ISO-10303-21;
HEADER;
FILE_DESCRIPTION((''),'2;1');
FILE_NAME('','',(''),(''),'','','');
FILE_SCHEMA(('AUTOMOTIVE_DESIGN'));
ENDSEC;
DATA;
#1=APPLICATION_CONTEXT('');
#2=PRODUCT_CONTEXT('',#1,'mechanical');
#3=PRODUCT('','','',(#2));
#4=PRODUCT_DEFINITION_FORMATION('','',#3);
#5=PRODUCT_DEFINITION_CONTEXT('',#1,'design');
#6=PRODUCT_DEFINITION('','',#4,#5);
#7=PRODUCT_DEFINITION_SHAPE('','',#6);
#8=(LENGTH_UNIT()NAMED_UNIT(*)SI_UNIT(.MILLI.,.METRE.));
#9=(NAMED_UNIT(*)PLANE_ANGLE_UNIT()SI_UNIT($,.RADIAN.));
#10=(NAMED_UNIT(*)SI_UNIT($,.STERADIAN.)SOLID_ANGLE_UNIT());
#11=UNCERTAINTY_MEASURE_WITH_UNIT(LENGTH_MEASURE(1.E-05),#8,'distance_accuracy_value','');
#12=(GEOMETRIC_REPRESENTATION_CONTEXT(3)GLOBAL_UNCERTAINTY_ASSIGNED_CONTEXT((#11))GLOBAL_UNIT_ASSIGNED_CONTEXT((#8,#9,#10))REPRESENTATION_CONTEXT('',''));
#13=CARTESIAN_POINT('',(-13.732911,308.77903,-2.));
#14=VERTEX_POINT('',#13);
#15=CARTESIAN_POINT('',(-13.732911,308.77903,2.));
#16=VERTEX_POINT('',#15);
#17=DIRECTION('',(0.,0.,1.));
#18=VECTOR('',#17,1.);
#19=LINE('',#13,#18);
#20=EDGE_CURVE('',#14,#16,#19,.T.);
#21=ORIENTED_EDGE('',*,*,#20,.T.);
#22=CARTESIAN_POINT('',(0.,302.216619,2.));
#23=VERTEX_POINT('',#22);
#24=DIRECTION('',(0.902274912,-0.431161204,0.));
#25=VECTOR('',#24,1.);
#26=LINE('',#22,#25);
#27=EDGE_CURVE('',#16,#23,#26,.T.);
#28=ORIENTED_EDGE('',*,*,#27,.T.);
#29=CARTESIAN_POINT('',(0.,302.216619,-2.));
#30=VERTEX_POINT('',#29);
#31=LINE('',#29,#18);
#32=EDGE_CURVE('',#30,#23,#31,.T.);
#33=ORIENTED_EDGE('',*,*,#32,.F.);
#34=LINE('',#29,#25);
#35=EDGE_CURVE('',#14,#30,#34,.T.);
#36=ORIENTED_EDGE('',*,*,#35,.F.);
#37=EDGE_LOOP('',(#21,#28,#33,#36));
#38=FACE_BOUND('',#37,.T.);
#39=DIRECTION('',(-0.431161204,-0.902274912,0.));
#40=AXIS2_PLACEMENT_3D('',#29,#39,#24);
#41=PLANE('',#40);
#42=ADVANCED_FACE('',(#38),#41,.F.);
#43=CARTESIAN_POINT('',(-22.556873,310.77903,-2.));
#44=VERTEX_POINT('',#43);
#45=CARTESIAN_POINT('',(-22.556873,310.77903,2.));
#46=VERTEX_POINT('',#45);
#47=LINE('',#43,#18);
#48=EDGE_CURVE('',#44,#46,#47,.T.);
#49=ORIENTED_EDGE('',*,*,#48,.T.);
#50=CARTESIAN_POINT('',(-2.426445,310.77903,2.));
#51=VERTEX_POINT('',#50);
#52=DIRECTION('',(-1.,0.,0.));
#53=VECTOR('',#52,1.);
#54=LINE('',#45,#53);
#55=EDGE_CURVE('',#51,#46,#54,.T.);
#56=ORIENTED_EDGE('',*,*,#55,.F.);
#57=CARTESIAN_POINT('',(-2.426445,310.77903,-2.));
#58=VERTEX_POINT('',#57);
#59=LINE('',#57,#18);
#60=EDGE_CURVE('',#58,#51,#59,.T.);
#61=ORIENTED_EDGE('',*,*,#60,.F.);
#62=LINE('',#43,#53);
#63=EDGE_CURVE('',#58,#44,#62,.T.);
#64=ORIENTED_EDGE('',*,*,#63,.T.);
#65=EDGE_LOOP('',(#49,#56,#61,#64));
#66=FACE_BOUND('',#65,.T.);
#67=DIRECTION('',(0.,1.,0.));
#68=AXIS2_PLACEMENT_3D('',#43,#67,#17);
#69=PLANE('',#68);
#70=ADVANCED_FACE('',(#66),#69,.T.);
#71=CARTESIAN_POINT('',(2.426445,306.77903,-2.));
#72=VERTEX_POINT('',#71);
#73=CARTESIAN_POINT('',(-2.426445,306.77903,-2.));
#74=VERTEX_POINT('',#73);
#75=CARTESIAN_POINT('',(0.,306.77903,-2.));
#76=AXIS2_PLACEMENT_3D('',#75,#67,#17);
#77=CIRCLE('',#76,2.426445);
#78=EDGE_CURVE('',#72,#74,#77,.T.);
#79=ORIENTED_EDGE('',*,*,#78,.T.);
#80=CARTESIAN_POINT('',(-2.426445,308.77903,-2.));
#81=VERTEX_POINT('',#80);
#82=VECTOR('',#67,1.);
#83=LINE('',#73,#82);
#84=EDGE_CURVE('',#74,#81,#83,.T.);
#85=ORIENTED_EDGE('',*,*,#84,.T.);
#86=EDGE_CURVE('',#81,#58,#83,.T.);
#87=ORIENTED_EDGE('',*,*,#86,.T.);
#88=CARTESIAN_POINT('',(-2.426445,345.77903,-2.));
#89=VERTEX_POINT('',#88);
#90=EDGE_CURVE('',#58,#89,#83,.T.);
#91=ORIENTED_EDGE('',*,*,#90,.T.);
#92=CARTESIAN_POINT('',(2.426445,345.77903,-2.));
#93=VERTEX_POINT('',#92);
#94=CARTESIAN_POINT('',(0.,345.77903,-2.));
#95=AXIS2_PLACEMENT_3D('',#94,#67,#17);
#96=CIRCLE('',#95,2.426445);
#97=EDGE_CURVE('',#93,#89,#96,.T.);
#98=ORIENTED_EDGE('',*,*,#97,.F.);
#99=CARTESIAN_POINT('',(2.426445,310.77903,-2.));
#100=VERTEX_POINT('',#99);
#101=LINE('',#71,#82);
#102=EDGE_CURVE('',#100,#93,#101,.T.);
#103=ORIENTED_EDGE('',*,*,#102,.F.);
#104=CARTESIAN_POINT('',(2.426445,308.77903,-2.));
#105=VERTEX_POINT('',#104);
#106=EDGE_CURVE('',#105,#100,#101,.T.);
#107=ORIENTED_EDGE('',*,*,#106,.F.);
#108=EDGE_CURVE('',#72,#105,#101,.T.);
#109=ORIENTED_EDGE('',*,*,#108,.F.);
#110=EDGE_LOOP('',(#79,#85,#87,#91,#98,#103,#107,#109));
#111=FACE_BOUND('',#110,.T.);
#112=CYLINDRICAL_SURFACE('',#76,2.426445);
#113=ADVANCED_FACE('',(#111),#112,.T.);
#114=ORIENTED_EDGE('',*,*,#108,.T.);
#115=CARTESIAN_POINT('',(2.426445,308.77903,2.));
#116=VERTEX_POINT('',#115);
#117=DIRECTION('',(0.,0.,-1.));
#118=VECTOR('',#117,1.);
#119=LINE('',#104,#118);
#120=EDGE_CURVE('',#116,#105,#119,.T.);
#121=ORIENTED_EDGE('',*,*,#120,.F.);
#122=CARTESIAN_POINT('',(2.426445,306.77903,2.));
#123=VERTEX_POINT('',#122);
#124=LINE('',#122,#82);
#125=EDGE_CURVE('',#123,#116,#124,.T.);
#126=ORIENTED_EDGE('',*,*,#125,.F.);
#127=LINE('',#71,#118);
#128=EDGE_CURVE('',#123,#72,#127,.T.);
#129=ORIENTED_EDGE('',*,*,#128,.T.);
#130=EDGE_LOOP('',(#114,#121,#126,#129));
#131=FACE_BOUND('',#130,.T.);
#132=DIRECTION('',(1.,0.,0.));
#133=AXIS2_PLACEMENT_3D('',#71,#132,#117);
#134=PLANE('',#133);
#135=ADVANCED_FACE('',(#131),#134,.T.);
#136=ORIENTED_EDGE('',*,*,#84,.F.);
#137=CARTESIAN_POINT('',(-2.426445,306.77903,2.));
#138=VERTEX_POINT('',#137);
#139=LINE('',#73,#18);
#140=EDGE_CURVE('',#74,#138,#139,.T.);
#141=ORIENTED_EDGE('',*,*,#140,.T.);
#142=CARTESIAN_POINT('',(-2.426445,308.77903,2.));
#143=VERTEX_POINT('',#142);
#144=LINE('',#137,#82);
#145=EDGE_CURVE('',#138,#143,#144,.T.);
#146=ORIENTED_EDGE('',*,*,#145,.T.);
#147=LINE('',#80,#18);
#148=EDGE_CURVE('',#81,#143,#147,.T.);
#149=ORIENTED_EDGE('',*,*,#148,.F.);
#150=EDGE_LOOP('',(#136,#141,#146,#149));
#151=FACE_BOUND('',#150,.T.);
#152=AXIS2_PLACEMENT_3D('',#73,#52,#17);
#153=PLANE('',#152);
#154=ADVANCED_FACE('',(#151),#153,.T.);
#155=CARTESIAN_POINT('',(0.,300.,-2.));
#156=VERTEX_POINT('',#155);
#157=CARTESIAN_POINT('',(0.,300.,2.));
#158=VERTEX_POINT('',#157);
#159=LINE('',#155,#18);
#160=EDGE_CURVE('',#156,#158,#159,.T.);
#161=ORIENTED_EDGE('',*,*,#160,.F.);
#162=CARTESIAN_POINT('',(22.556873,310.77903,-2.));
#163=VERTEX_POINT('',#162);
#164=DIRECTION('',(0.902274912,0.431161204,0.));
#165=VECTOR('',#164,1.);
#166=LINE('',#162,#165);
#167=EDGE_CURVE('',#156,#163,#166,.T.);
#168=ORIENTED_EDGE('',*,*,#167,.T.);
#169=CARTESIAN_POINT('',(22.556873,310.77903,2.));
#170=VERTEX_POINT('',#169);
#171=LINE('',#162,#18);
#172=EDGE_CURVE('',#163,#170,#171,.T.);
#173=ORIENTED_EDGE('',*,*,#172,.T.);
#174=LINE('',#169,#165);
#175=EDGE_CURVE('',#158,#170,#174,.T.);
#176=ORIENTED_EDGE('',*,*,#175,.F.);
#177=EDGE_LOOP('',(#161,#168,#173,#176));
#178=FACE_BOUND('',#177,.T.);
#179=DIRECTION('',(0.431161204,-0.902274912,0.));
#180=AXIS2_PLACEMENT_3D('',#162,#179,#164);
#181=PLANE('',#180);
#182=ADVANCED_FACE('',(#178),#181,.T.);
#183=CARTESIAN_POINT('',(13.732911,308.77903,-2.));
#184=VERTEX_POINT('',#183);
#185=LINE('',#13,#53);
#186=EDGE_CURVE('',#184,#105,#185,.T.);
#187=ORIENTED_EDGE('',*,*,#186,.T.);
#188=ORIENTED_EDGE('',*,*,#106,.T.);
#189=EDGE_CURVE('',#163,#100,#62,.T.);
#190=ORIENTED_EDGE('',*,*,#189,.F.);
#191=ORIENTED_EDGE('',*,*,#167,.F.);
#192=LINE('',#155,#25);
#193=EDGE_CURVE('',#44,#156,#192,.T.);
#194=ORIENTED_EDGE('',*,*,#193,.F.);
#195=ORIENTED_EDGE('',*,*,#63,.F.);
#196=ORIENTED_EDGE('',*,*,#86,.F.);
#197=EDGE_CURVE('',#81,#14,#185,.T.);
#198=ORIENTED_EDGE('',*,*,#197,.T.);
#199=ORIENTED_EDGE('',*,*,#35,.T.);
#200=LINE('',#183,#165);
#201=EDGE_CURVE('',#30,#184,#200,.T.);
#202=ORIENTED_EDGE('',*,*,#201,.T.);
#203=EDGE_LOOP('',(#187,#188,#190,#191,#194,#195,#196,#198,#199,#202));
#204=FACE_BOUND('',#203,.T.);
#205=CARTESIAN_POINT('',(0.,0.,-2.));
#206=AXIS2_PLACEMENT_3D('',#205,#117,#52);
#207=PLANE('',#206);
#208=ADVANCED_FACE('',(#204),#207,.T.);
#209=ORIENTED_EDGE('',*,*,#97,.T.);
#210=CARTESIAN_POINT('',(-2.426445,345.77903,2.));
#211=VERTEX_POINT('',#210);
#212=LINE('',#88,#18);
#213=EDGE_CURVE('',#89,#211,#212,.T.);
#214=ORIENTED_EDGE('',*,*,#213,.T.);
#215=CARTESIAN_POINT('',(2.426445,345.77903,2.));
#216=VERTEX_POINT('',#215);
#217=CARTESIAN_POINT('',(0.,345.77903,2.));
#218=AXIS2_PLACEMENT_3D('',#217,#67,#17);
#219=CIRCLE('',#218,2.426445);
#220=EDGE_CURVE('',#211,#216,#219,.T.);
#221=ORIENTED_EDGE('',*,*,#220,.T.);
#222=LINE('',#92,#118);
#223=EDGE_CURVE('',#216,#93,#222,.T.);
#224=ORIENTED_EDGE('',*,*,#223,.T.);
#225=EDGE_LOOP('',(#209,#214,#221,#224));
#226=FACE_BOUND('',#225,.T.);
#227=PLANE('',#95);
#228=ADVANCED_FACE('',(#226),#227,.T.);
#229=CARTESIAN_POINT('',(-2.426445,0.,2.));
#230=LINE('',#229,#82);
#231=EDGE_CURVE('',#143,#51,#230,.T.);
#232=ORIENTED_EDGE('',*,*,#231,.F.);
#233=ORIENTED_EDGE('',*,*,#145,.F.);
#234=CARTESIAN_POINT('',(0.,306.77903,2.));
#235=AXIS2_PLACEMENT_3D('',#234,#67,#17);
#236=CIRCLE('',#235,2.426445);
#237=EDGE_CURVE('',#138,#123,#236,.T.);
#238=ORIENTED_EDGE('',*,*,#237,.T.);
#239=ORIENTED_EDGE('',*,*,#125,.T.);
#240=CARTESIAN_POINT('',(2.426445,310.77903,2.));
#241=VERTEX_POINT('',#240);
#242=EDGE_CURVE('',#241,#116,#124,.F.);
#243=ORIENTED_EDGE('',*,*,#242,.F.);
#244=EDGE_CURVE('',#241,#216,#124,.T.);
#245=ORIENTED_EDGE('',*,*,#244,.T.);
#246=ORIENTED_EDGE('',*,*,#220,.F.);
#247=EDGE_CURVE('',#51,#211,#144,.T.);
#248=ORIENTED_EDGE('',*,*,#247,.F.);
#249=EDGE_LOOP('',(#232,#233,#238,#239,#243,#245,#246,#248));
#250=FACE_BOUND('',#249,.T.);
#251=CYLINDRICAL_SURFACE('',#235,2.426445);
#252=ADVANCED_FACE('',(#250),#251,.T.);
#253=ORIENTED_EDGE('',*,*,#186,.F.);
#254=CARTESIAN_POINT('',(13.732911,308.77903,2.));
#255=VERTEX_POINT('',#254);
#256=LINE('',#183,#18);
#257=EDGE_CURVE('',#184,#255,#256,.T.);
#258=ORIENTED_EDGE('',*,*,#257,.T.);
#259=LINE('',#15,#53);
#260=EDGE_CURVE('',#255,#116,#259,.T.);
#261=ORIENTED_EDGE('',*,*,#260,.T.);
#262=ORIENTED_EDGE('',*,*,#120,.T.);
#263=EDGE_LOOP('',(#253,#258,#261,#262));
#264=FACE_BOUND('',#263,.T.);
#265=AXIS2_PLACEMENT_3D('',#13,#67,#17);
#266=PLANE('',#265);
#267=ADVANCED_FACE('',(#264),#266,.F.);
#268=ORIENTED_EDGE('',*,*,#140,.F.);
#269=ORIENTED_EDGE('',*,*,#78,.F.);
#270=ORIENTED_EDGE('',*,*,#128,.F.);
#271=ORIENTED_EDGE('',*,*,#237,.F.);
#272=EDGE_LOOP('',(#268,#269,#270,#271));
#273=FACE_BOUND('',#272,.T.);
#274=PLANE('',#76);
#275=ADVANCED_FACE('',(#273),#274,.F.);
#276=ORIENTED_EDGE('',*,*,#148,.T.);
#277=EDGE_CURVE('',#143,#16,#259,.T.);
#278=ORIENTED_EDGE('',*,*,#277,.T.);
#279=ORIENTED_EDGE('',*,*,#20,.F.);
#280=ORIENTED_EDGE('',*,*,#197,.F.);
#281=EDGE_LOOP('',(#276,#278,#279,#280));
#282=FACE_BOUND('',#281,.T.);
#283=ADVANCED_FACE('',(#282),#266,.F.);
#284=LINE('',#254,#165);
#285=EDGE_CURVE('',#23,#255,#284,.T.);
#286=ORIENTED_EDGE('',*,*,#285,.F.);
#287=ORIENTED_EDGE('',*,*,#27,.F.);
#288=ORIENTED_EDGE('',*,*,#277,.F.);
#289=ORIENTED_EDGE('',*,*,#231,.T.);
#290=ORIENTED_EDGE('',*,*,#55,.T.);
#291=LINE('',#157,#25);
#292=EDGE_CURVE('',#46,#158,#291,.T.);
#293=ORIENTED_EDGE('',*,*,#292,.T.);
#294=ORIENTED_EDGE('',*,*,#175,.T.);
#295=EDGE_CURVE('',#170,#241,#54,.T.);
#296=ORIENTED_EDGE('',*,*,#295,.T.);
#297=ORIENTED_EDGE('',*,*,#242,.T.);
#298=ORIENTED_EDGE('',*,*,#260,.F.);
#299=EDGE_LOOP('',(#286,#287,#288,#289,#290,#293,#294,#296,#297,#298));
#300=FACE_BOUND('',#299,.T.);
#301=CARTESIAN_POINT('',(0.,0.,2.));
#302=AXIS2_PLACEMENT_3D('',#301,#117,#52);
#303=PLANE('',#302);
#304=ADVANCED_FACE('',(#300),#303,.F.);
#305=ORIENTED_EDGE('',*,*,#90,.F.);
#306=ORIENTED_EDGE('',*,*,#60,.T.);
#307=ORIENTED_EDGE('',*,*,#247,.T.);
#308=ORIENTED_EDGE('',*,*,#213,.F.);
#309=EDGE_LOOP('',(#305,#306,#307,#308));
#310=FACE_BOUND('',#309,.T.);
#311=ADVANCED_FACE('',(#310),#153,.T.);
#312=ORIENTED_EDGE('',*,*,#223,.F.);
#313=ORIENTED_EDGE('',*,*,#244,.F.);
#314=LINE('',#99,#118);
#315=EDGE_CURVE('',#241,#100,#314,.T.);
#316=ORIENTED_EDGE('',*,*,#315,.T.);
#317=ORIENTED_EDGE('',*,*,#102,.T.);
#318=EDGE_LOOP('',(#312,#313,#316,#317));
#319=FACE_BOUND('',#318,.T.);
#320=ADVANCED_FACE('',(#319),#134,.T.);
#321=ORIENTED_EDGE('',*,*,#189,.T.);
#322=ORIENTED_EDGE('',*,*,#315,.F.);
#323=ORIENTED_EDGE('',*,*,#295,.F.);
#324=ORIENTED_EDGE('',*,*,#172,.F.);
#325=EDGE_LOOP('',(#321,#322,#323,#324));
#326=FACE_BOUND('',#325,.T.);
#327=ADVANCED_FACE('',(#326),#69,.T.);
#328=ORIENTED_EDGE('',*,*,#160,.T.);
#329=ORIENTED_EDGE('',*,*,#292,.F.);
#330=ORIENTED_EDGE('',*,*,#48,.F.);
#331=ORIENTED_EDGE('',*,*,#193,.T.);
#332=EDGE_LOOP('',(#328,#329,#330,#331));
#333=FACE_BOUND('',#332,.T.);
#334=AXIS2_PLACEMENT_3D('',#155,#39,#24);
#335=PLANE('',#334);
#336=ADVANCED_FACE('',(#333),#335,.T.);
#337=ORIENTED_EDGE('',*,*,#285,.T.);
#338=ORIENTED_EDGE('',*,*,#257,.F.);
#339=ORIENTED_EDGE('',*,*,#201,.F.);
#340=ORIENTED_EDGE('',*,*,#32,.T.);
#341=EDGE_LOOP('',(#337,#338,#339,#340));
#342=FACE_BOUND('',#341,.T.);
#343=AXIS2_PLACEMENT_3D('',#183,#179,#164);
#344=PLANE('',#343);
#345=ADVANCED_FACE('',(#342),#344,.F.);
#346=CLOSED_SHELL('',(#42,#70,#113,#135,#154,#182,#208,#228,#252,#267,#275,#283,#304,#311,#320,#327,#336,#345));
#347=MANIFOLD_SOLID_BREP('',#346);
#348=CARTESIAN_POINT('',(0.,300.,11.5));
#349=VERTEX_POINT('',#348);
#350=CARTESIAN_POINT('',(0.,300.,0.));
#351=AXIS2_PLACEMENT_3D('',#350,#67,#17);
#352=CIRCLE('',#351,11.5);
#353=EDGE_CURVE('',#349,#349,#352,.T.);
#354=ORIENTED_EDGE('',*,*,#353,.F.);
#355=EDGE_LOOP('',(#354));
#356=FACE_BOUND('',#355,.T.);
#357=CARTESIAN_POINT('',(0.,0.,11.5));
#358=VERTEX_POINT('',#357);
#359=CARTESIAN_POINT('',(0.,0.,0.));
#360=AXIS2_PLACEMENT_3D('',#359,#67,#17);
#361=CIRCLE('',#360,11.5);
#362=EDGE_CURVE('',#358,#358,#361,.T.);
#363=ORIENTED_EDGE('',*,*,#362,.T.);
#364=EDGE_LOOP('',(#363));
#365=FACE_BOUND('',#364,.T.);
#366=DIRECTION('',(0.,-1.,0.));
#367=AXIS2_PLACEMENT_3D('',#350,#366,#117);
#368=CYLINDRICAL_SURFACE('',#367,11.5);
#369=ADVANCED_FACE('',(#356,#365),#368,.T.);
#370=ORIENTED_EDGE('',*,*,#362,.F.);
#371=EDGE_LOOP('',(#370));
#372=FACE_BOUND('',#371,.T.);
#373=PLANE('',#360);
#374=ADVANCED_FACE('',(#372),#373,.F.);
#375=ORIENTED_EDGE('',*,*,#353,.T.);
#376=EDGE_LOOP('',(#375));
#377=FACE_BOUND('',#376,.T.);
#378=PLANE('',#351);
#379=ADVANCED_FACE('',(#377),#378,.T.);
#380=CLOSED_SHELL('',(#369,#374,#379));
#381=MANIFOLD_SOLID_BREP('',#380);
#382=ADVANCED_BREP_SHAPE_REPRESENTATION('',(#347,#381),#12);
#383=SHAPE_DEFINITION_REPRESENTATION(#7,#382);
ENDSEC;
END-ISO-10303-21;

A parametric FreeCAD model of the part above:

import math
import FreeCAD as App
import Part
import Sketcher

V = App.Vector


def add_polygon(sketch, points):
    """Adds a closed chain of lines whose ends are joined by coincident constraints."""
    first, n = sketch.GeometryCount, len(points)
    for a, b in zip(points, points[1:] + points[:1]):
        sketch.addGeometry(Part.LineSegment(App.Vector(*a, 0), App.Vector(*b, 0)), False)
    for i in range(n):
        sketch.addConstraint(Sketcher.Constraint("Coincident", first + i, 2, first + (i + 1) % n, 1))

doc = App.newDocument("Part")
body = doc.addObject("PartDesign::Body", "Body")

# Sketch on XZ plane
sketch1 = body.newObject("Sketcher::SketchObject", "Sketch")
sketch1.AttachmentSupport = (doc.getObject("XZ_Plane"), [""])
sketch1.MapMode = "FlatFace"
sketch1.addGeometry(Part.Circle(V(0, 0, 0), V(0, 0, 1), 12), False)
sketch1.addConstraint([
    Sketcher.Constraint("Coincident", 0, 3, -1, 1),
    Sketcher.Constraint("Diameter", 0, 23.0),
])
pad1 = body.newObject("PartDesign::Pad", "Pad")
pad1.Profile = sketch1
pad1.Length = 300
pad1.Reversed = True
body2 = doc.addObject("PartDesign::Body", "Body001")

# Sketch on XY plane
sketch2 = body2.newObject("Sketcher::SketchObject", "Sketch001")
sketch2.AttachmentSupport = (doc.getObject("XY_Plane001"), [""])
sketch2.MapMode = "FlatFace"
add_polygon(sketch2, [(-23, 311), (0, 300), (23, 311)])  # lines 0-2
add_polygon(sketch2, [(0, 302), (-14, 309), (14, 309)])  # lines 3-5
sketch2.addConstraint([
    Sketcher.Constraint("Horizontal", 2),
    Sketcher.Constraint("Horizontal", 4),
    Sketcher.Constraint("PointOnObject", 0, 2, -2),
    Sketcher.Constraint("PointOnObject", 5, 2, -2),
    Sketcher.Constraint("Parallel", 0, 3),
    Sketcher.Constraint("Parallel", 1, 5),
    Sketcher.Constraint("Equal", 0, 1),
    Sketcher.Constraint("Distance", 0, 25.0),
    Sketcher.Constraint("DistanceY", -1, 1, 0, 2, 300.0),
    Sketcher.Constraint("DistanceY", 3, 2, 2, 2, 2.0),
    Sketcher.Constraint("Distance", 3, 15.220318),
    Sketcher.Constraint("DistanceX", 2, 2, 2, 1, 45.113746),
])
pad2 = body2.newObject("PartDesign::Pad", "Pad001")
pad2.Profile = sketch2
pad2.Type = "TwoLengths"
pad2.Length = 2
pad2.Length2 = 2

# Sketch on XZ plane
sketch3 = body2.newObject("Sketcher::SketchObject", "Sketch002")
sketch3.AttachmentSupport = (doc.getObject("XZ_Plane001"), [""])
sketch3.MapMode = "FlatFace"
sketch3.AttachmentOffset = App.Placement(V(0, 0, -310.77903), App.Rotation())
sketch3.addGeometry([
    Part.LineSegment(V(2.4, 2, 0), V(2.4, -2, 0)),
    Part.ArcOfCircle(Part.Circle(V(0, -2, 0), V(0, 0, 1), 2.4), math.radians(180), math.radians(360)),
    Part.LineSegment(V(-2.4, -2, 0), V(-2.4, 2, 0)),
    Part.ArcOfCircle(Part.Circle(V(0, 2, 0), V(0, 0, 1), 2.4), math.radians(0), math.radians(180)),
], False)
sketch3.addConstraint([
    Sketcher.Constraint("Tangent", 0, 2, 1, 2),
    Sketcher.Constraint("Tangent", 1, 1, 2, 1),
    Sketcher.Constraint("Tangent", 2, 2, 3, 2),
    Sketcher.Constraint("Tangent", 3, 1, 0, 1),
    Sketcher.Constraint("Vertical", 0),
    Sketcher.Constraint("Vertical", 2),
    Sketcher.Constraint("Symmetric", 1, 3, 3, 3, -1, 1),
    Sketcher.Constraint("DistanceY", 0, 2, 0, 1, 4.0),
    Sketcher.Constraint("Radius", 1, 2.426445),
])
pad3 = body2.newObject("PartDesign::Pad", "Pad002")
pad3.Profile = sketch3
pad3.Type = "TwoLengths"
pad3.Length = 35
pad3.Length2 = 4
pad3.Reversed = True

doc.recompute()
